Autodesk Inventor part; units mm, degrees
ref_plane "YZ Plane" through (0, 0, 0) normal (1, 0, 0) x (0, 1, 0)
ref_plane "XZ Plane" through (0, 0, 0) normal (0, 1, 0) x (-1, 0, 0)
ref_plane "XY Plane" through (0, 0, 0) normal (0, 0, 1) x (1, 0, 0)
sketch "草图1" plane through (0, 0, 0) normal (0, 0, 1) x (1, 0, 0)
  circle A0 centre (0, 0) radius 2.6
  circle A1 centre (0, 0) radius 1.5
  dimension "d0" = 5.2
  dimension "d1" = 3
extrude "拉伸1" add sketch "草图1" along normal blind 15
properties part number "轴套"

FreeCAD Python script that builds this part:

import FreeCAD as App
import Part
import Sketcher
from FreeCAD import Vector
Q = App.Units.Quantity

doc = App.newDocument("Part")
body = doc.addObject("PartDesign::Body", "Body")

# Sketch on XY plane
sketch1 = body.newObject("Sketcher::SketchObject", "Sketch")
sketch1.AttachmentSupport = (doc.getObject("XY_Plane"), [""])
sketch1.MapMode = "FlatFace"
sketch1.addGeometry([
    Part.Circle(Vector(0, 0, 0), Vector(0, 0, 1), 2.6),
    Part.Circle(Vector(0, 0, 0), Vector(0, 0, 1), 1.5),
], False)
sketch1.addConstraint([
    Sketcher.Constraint("Coincident", 0, 3, -1, 1),
    Sketcher.Constraint("Coincident", 1, 3, -1, 1),
    Sketcher.Constraint("Diameter", 1, Q("3 mm")),
    Sketcher.Constraint("Diameter", 0, Q("5.2 mm")),
])
pad1 = body.newObject("PartDesign::Pad", "Pad")
pad1.Profile = sketch1
pad1.Length = 15

doc.recompute()
